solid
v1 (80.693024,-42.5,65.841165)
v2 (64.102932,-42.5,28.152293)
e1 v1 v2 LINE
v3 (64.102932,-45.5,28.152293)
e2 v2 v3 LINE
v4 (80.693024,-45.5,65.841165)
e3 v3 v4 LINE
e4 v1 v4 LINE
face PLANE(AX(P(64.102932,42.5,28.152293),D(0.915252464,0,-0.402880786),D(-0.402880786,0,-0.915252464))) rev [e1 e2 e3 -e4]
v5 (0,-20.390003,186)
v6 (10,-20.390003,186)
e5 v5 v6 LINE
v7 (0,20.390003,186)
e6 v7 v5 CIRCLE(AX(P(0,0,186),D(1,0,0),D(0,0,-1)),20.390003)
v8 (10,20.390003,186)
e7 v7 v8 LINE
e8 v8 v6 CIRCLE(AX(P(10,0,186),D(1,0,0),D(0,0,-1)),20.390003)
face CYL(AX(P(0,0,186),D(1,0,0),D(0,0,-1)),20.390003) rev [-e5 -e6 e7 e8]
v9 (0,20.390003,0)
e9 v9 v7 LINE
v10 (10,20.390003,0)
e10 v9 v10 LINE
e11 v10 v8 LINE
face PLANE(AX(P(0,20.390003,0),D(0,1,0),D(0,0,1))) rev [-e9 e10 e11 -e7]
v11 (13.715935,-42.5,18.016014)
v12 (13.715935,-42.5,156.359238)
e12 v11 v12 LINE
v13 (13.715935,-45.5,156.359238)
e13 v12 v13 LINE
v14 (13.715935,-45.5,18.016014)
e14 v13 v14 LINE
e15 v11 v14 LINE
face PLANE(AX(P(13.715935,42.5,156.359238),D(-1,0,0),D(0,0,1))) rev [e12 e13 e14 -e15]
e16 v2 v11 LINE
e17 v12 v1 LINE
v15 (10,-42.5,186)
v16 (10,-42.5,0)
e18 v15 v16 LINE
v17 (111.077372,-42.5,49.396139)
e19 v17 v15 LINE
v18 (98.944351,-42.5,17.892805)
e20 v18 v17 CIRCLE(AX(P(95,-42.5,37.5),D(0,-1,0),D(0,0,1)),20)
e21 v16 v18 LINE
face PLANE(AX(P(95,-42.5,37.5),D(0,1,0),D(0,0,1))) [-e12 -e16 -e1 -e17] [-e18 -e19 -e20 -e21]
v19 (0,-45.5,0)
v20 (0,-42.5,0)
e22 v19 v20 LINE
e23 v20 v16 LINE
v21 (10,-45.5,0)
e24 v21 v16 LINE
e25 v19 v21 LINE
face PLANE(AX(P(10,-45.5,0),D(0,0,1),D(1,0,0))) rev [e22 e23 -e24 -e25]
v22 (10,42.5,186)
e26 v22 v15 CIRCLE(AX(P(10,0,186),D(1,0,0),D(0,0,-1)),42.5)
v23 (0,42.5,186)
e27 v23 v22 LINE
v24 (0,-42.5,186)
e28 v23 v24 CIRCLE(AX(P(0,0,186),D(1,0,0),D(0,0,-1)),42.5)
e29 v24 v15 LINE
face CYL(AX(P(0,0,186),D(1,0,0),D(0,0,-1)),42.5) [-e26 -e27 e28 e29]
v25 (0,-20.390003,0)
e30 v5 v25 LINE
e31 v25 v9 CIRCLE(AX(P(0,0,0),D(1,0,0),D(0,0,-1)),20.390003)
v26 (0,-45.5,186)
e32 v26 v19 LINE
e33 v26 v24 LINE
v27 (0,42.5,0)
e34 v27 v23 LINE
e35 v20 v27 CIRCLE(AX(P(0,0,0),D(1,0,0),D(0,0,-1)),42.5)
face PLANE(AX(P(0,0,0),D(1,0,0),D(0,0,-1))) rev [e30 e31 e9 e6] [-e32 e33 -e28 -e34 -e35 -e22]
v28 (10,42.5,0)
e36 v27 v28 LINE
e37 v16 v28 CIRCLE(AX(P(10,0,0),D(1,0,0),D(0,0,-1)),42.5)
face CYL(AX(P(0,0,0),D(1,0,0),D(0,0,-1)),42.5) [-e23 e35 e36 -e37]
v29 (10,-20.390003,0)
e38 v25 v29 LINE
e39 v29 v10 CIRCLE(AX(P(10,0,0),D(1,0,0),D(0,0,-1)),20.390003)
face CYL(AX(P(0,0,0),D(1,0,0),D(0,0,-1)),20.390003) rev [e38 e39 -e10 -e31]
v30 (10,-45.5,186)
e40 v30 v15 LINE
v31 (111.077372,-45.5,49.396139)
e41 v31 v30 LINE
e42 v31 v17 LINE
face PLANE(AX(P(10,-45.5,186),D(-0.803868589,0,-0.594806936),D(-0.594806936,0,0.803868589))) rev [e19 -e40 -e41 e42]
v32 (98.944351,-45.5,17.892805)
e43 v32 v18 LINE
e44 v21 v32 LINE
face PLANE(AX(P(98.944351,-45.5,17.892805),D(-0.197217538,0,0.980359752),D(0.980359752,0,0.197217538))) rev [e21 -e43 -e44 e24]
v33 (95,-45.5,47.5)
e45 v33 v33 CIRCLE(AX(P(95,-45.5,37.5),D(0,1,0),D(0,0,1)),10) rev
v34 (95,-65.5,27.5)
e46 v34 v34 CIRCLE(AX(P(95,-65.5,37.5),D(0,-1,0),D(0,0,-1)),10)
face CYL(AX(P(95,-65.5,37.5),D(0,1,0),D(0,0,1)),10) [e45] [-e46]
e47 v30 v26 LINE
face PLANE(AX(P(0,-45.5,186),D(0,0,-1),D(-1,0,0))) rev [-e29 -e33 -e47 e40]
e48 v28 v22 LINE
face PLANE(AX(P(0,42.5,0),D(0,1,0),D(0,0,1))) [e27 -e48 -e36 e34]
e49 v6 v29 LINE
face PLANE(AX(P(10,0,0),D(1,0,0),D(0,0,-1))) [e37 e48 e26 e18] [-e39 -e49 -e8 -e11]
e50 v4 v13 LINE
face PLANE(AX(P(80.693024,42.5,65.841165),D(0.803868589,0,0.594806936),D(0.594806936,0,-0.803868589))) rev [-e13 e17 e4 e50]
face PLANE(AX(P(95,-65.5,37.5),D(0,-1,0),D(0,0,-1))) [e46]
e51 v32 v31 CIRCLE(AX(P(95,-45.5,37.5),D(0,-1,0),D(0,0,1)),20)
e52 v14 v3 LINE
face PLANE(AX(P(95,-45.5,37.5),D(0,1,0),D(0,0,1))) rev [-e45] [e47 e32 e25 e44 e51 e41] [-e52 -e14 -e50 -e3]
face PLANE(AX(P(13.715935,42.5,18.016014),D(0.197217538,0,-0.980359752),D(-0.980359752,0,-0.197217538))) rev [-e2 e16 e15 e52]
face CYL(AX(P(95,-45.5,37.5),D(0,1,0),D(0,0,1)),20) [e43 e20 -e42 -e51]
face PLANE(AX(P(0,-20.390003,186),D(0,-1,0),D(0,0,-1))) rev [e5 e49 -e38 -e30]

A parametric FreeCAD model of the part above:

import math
import FreeCAD as App
import Part
import Sketcher

V = App.Vector

doc = App.newDocument("Part")
body = doc.addObject("PartDesign::Body", "Body")

sketch1 = body.newObject("Sketcher::SketchObject", "Sketch")
sketch1.AttachmentSupport = (doc.getObject("YZ_Plane"), [""])
sketch1.MapMode = "FlatFace"
sketch1.AttachmentOffset = App.Placement(V(0, 0, 10), App.Rotation())
sketch1.addGeometry(Part.LineSegment(V(42, 0, 0), V(42, 186, 0)), False)
sketch1.addGeometry(Part.ArcOfCircle(Part.Circle(V(0, 186, 0), V(0, 0, 1), 42), math.radians(0), math.radians(180)), False)
sketch1.addGeometry(Part.LineSegment(V(-42, 186, 0), V(-42, 0, 0)), False)
sketch1.addGeometry(Part.ArcOfCircle(Part.Circle(V(0, 0, 0), V(0, 0, 1), 42), math.radians(180), math.radians(360)), False)
sketch1.addConstraint(Sketcher.Constraint("Tangent", 0, 2, 1, 1))
sketch1.addConstraint(Sketcher.Constraint("Tangent", 1, 2, 2, 1))
sketch1.addConstraint(Sketcher.Constraint("Tangent", 2, 2, 3, 1))
sketch1.addConstraint(Sketcher.Constraint("Tangent", 3, 2, 0, 1))
sketch1.addConstraint(Sketcher.Constraint("Vertical", 0))
sketch1.addConstraint(Sketcher.Constraint("Vertical", 2))
sketch1.addConstraint(Sketcher.Constraint("Coincident", 3, 3, -1, 1))
sketch1.addConstraint(Sketcher.Constraint("Radius", 1, 42.5))
sketch1.addConstraint(Sketcher.Constraint("DistanceY", 0, 1, 0, 2, 186.0))
pad1 = body.newObject("PartDesign::Pad", "Pad")
pad1.Profile = sketch1
pad1.Length = 10
pad1.Reversed = True

sketch2 = body.newObject("Sketcher::SketchObject", "Sketch001")
sketch2.AttachmentSupport = (doc.getObject("XZ_Plane"), [""])
sketch2.MapMode = "FlatFace"
sketch2.AttachmentOffset = App.Placement(V(0, 0, 42.5), App.Rotation())
sketch2.addGeometry(Part.LineSegment(V(10, 0, 0), V(99, 18, 0)), False)
sketch2.addGeometry(Part.ArcOfCircle(Part.Circle(V(95, 38, 0), V(0, 0, 1), 20), math.radians(-79), math.radians(36)), False)
sketch2.addGeometry(Part.LineSegment(V(111, 49, 0), V(10, 186, 0)), False)
sketch2.addGeometry(Part.LineSegment(V(10, 186, 0), V(0, 186, 0)), False)
sketch2.addGeometry(Part.LineSegment(V(0, 186, 0), V(0, 0, 0)), False)
sketch2.addGeometry(Part.LineSegment(V(0, 0, 0), V(10, 0, 0)), False)
sketch2.addConstraint(Sketcher.Constraint("Tangent", 0, 2, 1, 1))
sketch2.addConstraint(Sketcher.Constraint("Tangent", 1, 2, 2, 1))
sketch2.addConstraint(Sketcher.Constraint("Coincident", 2, 2, 3, 1))
sketch2.addConstraint(Sketcher.Constraint("Coincident", 3, 2, 4, 1))
sketch2.addConstraint(Sketcher.Constraint("Coincident", 4, 2, 5, 1))
sketch2.addConstraint(Sketcher.Constraint("Coincident", 5, 2, 0, 1))
sketch2.addConstraint(Sketcher.Constraint("Horizontal", 3))
sketch2.addConstraint(Sketcher.Constraint("Vertical", 4))
sketch2.addConstraint(Sketcher.Constraint("Horizontal", 5))
sketch2.addConstraint(Sketcher.Constraint("Coincident", 4, 2, -1, 1))
sketch2.addConstraint(Sketcher.Constraint("Vertical", 2, 2, 5, 2))
sketch2.addConstraint(Sketcher.Constraint("Radius", 1, 20.0))
sketch2.addConstraint(Sketcher.Constraint("DistanceX", 3, 2, 3, 1, 10.0))
sketch2.addConstraint(Sketcher.Constraint("DistanceY", 4, 2, 4, 1, 186.0))
sketch2.addConstraint(Sketcher.Constraint("DistanceX", -1, 1, 1, 3, 95.0))
sketch2.addConstraint(Sketcher.Constraint("DistanceY", -1, 1, 1, 3, 37.5))
pad2 = body.newObject("PartDesign::Pad", "Pad001")
pad2.Profile = sketch2
pad2.Length = 3

sketch3 = body.newObject("Sketcher::SketchObject", "Sketch002")
sketch3.AttachmentSupport = (doc.getObject("XZ_Plane"), [""])
sketch3.MapMode = "FlatFace"
sketch3.AttachmentOffset = App.Placement(V(0, 0, 45.5), App.Rotation())
sketch3.addGeometry(Part.Circle(V(95, 38, 0), V(0, 0, 1), 10), False)
sketch3.addConstraint(Sketcher.Constraint("Diameter", 0, 20.0))
sketch3.addConstraint(Sketcher.Constraint("DistanceX", -1, 1, 0, 3, 95.0))
sketch3.addConstraint(Sketcher.Constraint("DistanceY", -1, 1, 0, 3, 37.5))
pad3 = body.newObject("PartDesign::Pad", "Pad002")
pad3.Profile = sketch3
pad3.Length = 20

sketch4 = body.newObject("Sketcher::SketchObject", "Sketch003")
sketch4.AttachmentSupport = (doc.getObject("YZ_Plane"), [""])
sketch4.MapMode = "FlatFace"
sketch4.AttachmentOffset = App.Placement(V(0, 0, 10), App.Rotation())
sketch4.addGeometry(Part.LineSegment(V(-20, 186, 0), V(-20, 0, 0)), False)
sketch4.addGeometry(Part.ArcOfCircle(Part.Circle(V(0, 0, 0), V(0, 0, 1), 20), math.radians(180), math.radians(360)), False)
sketch4.addGeometry(Part.LineSegment(V(20, 0, 0), V(20, 186, 0)), False)
sketch4.addGeometry(Part.ArcOfCircle(Part.Circle(V(0, 186, 0), V(0, 0, 1), 20), math.radians(0), math.radians(180)), False)
sketch4.addConstraint(Sketcher.Constraint("Tangent", 0, 2, 1, 1))
sketch4.addConstraint(Sketcher.Constraint("Tangent", 1, 2, 2, 1))
sketch4.addConstraint(Sketcher.Constraint("Tangent", 2, 2, 3, 1))
sketch4.addConstraint(Sketcher.Constraint("Tangent", 3, 2, 0, 1))
sketch4.addConstraint(Sketcher.Constraint("Vertical", 0))
sketch4.addConstraint(Sketcher.Constraint("Vertical", 2))
sketch4.addConstraint(Sketcher.Constraint("Coincident", 1, 3, -1, 1))
sketch4.addConstraint(Sketcher.Constraint("DistanceY", 0, 2, 0, 1, 186.0))
sketch4.addConstraint(Sketcher.Constraint("Radius", 1, 20.390003))
pocket1 = body.newObject("PartDesign::Pocket", "Pocket")
pocket1.Profile = sketch4
pocket1.Type = "ThroughAll"

sketch5 = body.newObject("Sketcher::SketchObject", "Sketch004")
sketch5.AttachmentSupport = (doc.getObject("XZ_Plane"), [""])
sketch5.MapMode = "FlatFace"
sketch5.AttachmentOffset = App.Placement(V(0, 0, 45.5), App.Rotation())
sketch5.addGeometry(Part.LineSegment(V(14, 156, 0), V(14, 18, 0)), False)
sketch5.addGeometry(Part.LineSegment(V(14, 18, 0), V(64, 28, 0)), False)
sketch5.addGeometry(Part.LineSegment(V(64, 28, 0), V(81, 66, 0)), False)
sketch5.addGeometry(Part.LineSegment(V(81, 66, 0), V(14, 156, 0)), False)
sketch5.addConstraint(Sketcher.Constraint("Coincident", 0, 2, 1, 1))
sketch5.addConstraint(Sketcher.Constraint("Coincident", 1, 2, 2, 1))
sketch5.addConstraint(Sketcher.Constraint("Coincident", 2, 2, 3, 1))
sketch5.addConstraint(Sketcher.Constraint("Coincident", 3, 2, 0, 1))
sketch5.addConstraint(Sketcher.Constraint("Vertical", 0))
sketch5.addConstraint(Sketcher.Constraint("DistanceY", 0, 2, 0, 1, 138.343223))
sketch5.addConstraint(Sketcher.Constraint("DistanceX", -1, 1, 1, 2, 64.102932))
sketch5.addConstraint(Sketcher.Constraint("DistanceY", 0, 2, 1, 2, 10.136278))
sketch5.addConstraint(Sketcher.Constraint("DistanceX", 1, 2, 2, 2, 16.590092))
sketch5.addConstraint(Sketcher.Constraint("DistanceX", 0, 2, 2, 2, 66.977089))
sketch5.addConstraint(Sketcher.Constraint("DistanceY", 0, 2, 2, 2, 47.825151))
sketch5.addConstraint(Sketcher.Constraint("DistanceY", -1, 1, 0, 2, 18.016014))
pocket2 = body.newObject("PartDesign::Pocket", "Pocket001")
pocket2.Profile = sketch5
pocket2.Type = "ThroughAll"

doc.recompute()
